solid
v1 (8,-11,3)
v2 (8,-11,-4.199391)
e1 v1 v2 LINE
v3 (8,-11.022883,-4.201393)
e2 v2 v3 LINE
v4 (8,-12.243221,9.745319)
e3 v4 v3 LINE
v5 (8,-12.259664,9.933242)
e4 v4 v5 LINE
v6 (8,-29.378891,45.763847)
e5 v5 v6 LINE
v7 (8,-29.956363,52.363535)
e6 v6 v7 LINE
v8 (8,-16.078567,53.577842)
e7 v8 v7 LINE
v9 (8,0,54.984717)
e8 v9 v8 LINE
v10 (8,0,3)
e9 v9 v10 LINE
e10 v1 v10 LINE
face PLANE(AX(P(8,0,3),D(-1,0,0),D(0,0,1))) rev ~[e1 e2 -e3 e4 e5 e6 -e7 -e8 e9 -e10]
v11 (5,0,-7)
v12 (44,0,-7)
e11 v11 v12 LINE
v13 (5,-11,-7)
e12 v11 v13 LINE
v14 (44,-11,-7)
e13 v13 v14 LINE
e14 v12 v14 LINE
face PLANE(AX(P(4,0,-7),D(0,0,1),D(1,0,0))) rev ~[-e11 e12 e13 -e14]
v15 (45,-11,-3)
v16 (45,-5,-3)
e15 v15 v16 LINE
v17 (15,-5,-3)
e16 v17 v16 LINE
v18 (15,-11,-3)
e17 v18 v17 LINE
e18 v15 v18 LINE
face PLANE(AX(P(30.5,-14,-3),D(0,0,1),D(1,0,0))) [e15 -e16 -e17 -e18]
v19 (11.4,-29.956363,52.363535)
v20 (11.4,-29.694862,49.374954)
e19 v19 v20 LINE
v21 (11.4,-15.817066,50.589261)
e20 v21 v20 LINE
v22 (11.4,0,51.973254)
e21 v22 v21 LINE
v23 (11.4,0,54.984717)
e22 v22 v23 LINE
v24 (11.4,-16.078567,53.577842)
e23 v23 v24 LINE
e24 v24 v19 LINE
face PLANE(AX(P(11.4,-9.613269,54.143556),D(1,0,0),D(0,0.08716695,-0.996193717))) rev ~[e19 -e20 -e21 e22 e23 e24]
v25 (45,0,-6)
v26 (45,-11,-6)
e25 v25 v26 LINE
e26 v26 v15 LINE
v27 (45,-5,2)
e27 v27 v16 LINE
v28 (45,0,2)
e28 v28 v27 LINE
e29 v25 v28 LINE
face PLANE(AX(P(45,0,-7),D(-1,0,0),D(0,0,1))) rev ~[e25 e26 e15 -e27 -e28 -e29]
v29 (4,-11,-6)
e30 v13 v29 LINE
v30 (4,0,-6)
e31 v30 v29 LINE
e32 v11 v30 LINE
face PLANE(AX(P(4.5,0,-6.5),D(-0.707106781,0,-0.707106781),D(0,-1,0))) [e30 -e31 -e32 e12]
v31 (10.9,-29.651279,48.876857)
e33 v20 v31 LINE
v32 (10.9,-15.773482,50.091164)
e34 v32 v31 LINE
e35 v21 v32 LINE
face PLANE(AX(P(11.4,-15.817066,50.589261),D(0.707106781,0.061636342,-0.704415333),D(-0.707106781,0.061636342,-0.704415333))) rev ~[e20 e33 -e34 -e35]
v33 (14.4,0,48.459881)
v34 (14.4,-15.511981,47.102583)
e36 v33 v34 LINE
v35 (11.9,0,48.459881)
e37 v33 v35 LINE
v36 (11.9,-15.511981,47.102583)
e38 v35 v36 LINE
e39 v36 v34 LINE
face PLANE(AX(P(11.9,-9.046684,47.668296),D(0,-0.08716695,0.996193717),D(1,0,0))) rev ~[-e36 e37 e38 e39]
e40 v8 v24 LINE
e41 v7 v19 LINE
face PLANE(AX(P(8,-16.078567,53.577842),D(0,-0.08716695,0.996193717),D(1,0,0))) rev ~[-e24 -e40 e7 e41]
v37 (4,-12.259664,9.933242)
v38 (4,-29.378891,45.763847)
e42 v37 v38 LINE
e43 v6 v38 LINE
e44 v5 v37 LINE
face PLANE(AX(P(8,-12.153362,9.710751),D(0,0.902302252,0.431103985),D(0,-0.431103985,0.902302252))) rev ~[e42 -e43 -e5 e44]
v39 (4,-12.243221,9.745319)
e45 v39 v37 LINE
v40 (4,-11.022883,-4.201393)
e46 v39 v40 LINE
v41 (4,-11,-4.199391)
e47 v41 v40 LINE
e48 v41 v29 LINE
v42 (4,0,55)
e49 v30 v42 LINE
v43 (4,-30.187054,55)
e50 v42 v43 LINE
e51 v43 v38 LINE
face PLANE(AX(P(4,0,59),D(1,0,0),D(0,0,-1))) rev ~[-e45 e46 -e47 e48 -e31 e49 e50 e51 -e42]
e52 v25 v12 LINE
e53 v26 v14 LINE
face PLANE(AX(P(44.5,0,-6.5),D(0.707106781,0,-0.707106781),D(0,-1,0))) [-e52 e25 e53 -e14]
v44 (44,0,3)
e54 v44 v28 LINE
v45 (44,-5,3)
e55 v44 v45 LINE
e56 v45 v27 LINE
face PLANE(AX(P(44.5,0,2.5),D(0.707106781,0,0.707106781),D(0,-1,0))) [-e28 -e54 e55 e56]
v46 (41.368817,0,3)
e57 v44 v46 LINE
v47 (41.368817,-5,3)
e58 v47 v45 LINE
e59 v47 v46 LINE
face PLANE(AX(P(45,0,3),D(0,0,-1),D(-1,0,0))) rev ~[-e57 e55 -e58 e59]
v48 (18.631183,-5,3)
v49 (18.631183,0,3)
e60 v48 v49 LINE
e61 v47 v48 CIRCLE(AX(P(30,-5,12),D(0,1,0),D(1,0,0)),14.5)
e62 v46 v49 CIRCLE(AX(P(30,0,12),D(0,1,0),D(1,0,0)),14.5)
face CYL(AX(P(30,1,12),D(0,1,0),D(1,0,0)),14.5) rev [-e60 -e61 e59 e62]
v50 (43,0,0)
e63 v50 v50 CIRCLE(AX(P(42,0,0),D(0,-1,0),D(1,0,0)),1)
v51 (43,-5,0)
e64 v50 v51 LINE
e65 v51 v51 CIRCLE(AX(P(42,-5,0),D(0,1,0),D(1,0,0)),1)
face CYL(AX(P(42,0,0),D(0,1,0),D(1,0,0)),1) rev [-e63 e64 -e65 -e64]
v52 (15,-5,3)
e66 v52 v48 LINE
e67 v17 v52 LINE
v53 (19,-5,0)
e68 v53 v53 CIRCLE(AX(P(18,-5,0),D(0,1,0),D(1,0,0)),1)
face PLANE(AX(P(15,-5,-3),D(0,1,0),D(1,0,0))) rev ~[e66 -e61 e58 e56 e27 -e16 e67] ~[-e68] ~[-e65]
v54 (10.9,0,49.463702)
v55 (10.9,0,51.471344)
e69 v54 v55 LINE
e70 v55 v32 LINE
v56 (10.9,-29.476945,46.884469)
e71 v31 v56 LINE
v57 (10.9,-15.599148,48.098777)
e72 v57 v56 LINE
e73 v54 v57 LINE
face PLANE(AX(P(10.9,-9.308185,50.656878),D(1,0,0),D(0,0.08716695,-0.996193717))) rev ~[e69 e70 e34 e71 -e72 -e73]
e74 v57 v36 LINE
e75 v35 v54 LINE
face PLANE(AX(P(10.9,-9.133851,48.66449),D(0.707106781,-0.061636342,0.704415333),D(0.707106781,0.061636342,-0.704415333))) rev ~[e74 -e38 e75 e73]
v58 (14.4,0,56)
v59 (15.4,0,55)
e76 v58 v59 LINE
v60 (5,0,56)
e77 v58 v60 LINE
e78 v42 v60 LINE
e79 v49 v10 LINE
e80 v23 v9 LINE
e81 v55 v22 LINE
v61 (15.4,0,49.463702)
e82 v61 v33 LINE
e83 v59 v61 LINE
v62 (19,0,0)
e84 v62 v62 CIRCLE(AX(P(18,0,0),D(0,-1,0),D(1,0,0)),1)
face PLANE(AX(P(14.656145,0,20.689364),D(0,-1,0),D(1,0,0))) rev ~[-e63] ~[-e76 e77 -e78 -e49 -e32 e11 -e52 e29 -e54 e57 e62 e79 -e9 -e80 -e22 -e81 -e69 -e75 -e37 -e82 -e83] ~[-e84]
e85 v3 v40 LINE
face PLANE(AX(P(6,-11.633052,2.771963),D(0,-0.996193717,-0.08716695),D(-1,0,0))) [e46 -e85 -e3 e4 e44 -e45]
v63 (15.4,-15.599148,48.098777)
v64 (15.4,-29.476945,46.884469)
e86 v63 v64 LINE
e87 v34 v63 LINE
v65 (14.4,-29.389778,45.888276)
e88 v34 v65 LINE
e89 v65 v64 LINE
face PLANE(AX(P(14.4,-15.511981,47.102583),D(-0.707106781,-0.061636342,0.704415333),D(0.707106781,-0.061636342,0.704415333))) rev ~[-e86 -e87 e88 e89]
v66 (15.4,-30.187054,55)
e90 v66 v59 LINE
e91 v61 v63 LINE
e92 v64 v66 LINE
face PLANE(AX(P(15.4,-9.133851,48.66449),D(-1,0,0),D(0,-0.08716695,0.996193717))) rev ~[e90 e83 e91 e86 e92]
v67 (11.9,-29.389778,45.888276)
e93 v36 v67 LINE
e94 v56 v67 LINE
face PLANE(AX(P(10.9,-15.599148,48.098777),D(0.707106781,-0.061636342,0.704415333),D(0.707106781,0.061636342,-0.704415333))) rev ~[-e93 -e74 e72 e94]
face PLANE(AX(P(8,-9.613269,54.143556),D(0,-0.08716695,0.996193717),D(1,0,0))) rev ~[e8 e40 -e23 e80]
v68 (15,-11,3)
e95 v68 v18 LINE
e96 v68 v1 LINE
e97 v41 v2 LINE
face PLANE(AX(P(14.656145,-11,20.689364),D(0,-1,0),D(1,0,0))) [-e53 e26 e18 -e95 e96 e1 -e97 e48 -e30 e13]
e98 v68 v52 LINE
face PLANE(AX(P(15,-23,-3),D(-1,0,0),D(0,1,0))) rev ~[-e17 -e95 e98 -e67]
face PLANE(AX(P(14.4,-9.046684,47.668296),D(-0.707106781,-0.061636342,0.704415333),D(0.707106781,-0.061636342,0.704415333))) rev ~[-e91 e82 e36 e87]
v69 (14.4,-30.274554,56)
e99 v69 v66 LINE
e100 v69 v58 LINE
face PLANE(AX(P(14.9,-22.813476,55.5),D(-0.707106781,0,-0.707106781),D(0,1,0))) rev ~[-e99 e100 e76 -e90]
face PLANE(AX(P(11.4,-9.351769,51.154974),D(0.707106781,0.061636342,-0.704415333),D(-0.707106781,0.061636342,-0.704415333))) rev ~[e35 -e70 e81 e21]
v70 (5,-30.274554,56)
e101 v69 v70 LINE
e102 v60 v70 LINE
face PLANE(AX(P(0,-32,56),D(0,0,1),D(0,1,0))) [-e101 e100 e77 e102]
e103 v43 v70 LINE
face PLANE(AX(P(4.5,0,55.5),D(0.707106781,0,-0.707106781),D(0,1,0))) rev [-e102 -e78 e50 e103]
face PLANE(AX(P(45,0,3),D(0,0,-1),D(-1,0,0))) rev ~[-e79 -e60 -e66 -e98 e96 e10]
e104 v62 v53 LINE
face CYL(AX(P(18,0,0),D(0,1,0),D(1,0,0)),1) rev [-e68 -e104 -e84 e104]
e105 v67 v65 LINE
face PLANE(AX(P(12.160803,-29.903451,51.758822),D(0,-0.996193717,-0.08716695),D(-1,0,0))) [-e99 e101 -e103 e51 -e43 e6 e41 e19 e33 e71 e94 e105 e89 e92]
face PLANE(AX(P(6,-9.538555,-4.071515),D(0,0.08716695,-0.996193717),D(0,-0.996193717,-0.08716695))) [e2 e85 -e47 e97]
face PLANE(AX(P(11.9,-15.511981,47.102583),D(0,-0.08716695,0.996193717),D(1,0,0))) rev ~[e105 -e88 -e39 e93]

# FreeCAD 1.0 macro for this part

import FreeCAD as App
import Part
import Sketcher
Q = App.Units.Quantity


def edges_at(feature, points):
    """Names of the edges that pass closest to the given points."""
    edges = feature.Shape.Edges
    near = lambda p: min(range(len(edges)), key=lambda i: edges[i].distToShape(Part.Vertex(*p))[0])
    return sorted({f"Edge{near(p) + 1}" for p in points})


def add_polygon(sketch, points):
    """Adds a closed chain of lines whose ends are joined by coincident constraints."""
    first, n = sketch.GeometryCount, len(points)
    for a, b in zip(points, points[1:] + points[:1]):
        sketch.addGeometry(Part.LineSegment(App.Vector(*a, 0), App.Vector(*b, 0)), False)
    for i in range(n):
        sketch.addConstraint(Sketcher.Constraint("Coincident", first + i, 2, first + (i + 1) % n, 1))

doc = App.newDocument("Part")
body = doc.addObject("PartDesign::Body", "Body")

sketch1 = body.newObject("Sketcher::SketchObject", "Sketch")
sketch1.AttachmentSupport = (doc.getObject("YZ_Plane"), [""])
sketch1.MapMode = "FlatFace"
add_polygon(sketch1, [(-32, 60), (-32, 56), (2, 56), (2, 60)])
sketch1.addConstraint(Sketcher.Constraint("Vertical", 0))
sketch1.addConstraint(Sketcher.Constraint("Horizontal", 1))
sketch1.addConstraint(Sketcher.Constraint("Vertical", 2))
sketch1.addConstraint(Sketcher.Constraint("Horizontal", 3))
sketch1.addConstraint(Sketcher.Constraint("DistanceX", 1, 1, 1, 2, 34.0))
sketch1.addConstraint(Sketcher.Constraint("DistanceY", 0, 2, 0, 1, 4.0))
sketch1.addConstraint(Sketcher.Constraint("DistanceX", 0, 2, -1, 1, 32.0))
sketch1.addConstraint(Sketcher.Constraint("DistanceY", -1, 1, 0, 2, 56.0))
pad1 = body.newObject("PartDesign::Pad", "Pad")
pad1.Profile = sketch1
pad1.Length = 30
body2 = doc.addObject("PartDesign::Body", "Body001")

sketch2 = body2.newObject("Sketcher::SketchObject", "Sketch001")
sketch2.Placement = App.Placement(App.Vector(-17.578899, -16.033386, 53.061496), App.Rotation(App.Vector(-1, 0, 0), App.Vector(0, 0.08716695, -0.996193717), App.Vector(0, -0.996193717, -0.08716695), "ZXY"))
add_polygon(sketch2, [(4.4, -4.5), (4.4, -0.5), (1, -0.5), (1, 2.5), (1.5, 3), (1.5, 5), (0.5, 6), (-2, 6), (-3, 5), (-3, -3.5), (-2, -4.5)])
sketch2.addConstraint(Sketcher.Constraint("Vertical", 0))
sketch2.addConstraint(Sketcher.Constraint("Horizontal", 1))
sketch2.addConstraint(Sketcher.Constraint("Vertical", 2))
sketch2.addConstraint(Sketcher.Constraint("Vertical", 4))
sketch2.addConstraint(Sketcher.Constraint("Horizontal", 6))
sketch2.addConstraint(Sketcher.Constraint("Vertical", 8))
sketch2.addConstraint(Sketcher.Constraint("Horizontal", 10))
sketch2.addConstraint(Sketcher.Constraint("Perpendicular", 3, 5))
sketch2.addConstraint(Sketcher.Constraint("Perpendicular", 5, 7))
sketch2.addConstraint(Sketcher.Constraint("Perpendicular", 7, 9))
sketch2.addConstraint(Sketcher.Constraint("Horizontal", 4, 2, 7, 2))
sketch2.addConstraint(Sketcher.Constraint("Vertical", 6, 2, 9, 2))
sketch2.addConstraint(Sketcher.Constraint("Equal", 5, 7))
sketch2.addConstraint(Sketcher.Constraint("DistanceY", 0, 1, 0, 2, 4.0))
sketch2.addConstraint(Sketcher.Constraint("DistanceY", 2, 1, 2, 2, 3.0))
sketch2.addConstraint(Sketcher.Constraint("DistanceY", 4, 1, 4, 2, 2.0))
sketch2.addConstraint(Sketcher.Constraint("DistanceX", 1, 2, 1, 1, 3.4))
sketch2.addConstraint(Sketcher.Constraint("DistanceX", 6, 2, 6, 1, 2.5))
sketch2.addConstraint(Sketcher.Constraint("DistanceX", 10, 1, 10, 2, 6.4))
sketch2.addConstraint(Sketcher.Constraint("DistanceX", 5, 2, 4, 2, 1.0))
sketch2.addConstraint(Sketcher.Constraint("DistanceX", -1, 1, 0, 2, 4.421101))
sketch2.addConstraint(Sketcher.Constraint("DistanceY", 0, 2, -1, 1, 0.518319))
pad2 = body2.newObject("PartDesign::Pad", "Pad001")
pad2.Profile = sketch2
pad2.Length = 13.930821
body3 = doc.addObject("PartDesign::Body", "Body002")

sketch3 = body3.newObject("Sketcher::SketchObject", "Sketch002")
sketch3.AttachmentSupport = (doc.getObject("XY_Plane002"), [""])
sketch3.MapMode = "FlatFace"
add_polygon(sketch3, [(-27, 10), (-27, 0), (-14, 0), (-14, 10)])
sketch3.addConstraint(Sketcher.Constraint("Vertical", 0))
sketch3.addConstraint(Sketcher.Constraint("Horizontal", 1))
sketch3.addConstraint(Sketcher.Constraint("Vertical", 2))
sketch3.addConstraint(Sketcher.Constraint("Horizontal", 3))
sketch3.addConstraint(Sketcher.Constraint("PointOnObject", 0, 2, -1))
sketch3.addConstraint(Sketcher.Constraint("DistanceX", 1, 1, 1, 2, 13.0))
sketch3.addConstraint(Sketcher.Constraint("DistanceY", 0, 2, 0, 1, 10.0))
sketch3.addConstraint(Sketcher.Constraint("DistanceX", 0, 2, -1, 1, 27.0))
pad3 = body3.newObject("PartDesign::Pad", "Pad002")
pad3.Profile = sketch3
pad3.Length = 60
body4 = doc.addObject("PartDesign::Body", "Body003")

sketch4 = body4.newObject("Sketcher::SketchObject", "Sketch003")
sketch4.Placement = App.Placement(App.Vector(-17.93, -18.755, 43.898096), App.Rotation(App.Vector(-1, 0, 0), App.Vector(0, 0.08716695, -0.996193717), App.Vector(0, -0.996193717, -0.08716695), "ZXY"))
add_polygon(sketch4, [(-4, 35), (-4, -35), (4, -35), (4, 35)])
sketch4.addConstraint(Sketcher.Constraint("Vertical", 0))
sketch4.addConstraint(Sketcher.Constraint("Horizontal", 1))
sketch4.addConstraint(Sketcher.Constraint("Vertical", 2))
sketch4.addConstraint(Sketcher.Constraint("Horizontal", 3))
sketch4.addConstraint(Sketcher.Constraint("Symmetric", 0, 2, 2, 2, -1, 1))
sketch4.addConstraint(Sketcher.Constraint("DistanceX", 1, 1, 1, 2, 8.14))
sketch4.addConstraint(Sketcher.Constraint("DistanceY", 0, 2, 0, 1, 69.180788))
pad4 = body4.newObject("PartDesign::Pad", "Pad003")
pad4.Profile = sketch4
pad4.Length = 0.460492
body5 = doc.addObject("PartDesign::Body", "Body004")

sketch5 = body5.newObject("Sketcher::SketchObject", "Sketch004")
sketch5.AttachmentSupport = (doc.getObject("YZ_Plane004"), [""])
sketch5.MapMode = "FlatFace"
sketch5.AttachmentOffset = App.Placement(App.Vector(0, 0, -22), App.Rotation())
add_polygon(sketch5, [(-21.8, 78.4), (-15.7, 9.4), (-12.2, 9.7), (-18.3, 78.7)])
sketch5.addConstraint(Sketcher.Constraint("Perpendicular", 0, 1))
sketch5.addConstraint(Sketcher.Constraint("Perpendicular", 1, 2))
sketch5.addConstraint(Sketcher.Constraint("Perpendicular", 2, 3))
sketch5.addConstraint(Sketcher.Constraint("Distance", 1, 3.51))
sketch5.addConstraint(Sketcher.Constraint("DistanceX", 2, 2, -1, 1, 18.273499))
sketch5.addConstraint(Sketcher.Constraint("DistanceX", 0, 2, -1, 1, 15.739861))
sketch5.addConstraint(Sketcher.Constraint("DistanceY", -1, 1, 1, 2, 9.745319))
sketch5.addConstraint(Sketcher.Constraint("DistanceY", -1, 1, 3, 2, 78.356829))
pad5 = body5.newObject("PartDesign::Pad", "Pad004")
pad5.Profile = sketch5
pad5.Length = 8.14
body6 = doc.addObject("PartDesign::Body", "Body005")

sketch6 = body6.newObject("Sketcher::SketchObject", "Sketch005")
sketch6.Placement = App.Placement(App.Vector(-24, -15.129692, 2.466007), App.Rotation(App.Vector(-1, 0, 0), App.Vector(0, 0.08716695, -0.996193717), App.Vector(0, -0.996193717, -0.08716695), "ZXY"))
add_polygon(sketch6, [(-2, 7), (-2, -7), (2, -7), (2, 7)])
sketch6.addConstraint(Sketcher.Constraint("Vertical", 0))
sketch6.addConstraint(Sketcher.Constraint("Horizontal", 1))
sketch6.addConstraint(Sketcher.Constraint("Vertical", 2))
sketch6.addConstraint(Sketcher.Constraint("Horizontal", 3))
sketch6.addConstraint(Sketcher.Constraint("Symmetric", 0, 2, 2, 2, -1, 1))
sketch6.addConstraint(Sketcher.Constraint("DistanceX", 1, 1, 1, 2, 4.0))
sketch6.addConstraint(Sketcher.Constraint("DistanceY", 0, 2, 0, 1, 14.0))
pad6 = body6.newObject("PartDesign::Pad", "Pad005")
pad6.Profile = sketch6
pad6.Length = 3.51
pad6.Reversed = True
body7 = doc.addObject("PartDesign::Body", "Body006")

sketch7 = body7.newObject("Sketcher::SketchObject", "Sketch006")
sketch7.Placement = App.Placement(App.Vector(-24, -13.991541, 9.592341), App.Rotation(App.Vector(0, 0.996193717, 0.08716695), App.Vector(-0.999999999, 0, 0), App.Vector(0, -0.08716695, 0.996193717), "ZXY"))
add_polygon(sketch7, [(-1.8, 2), (-1.8, -2), (1.8, -2), (1.8, 2)])
sketch7.addConstraint(Sketcher.Constraint("Vertical", 0))
sketch7.addConstraint(Sketcher.Constraint("Horizontal", 1))
sketch7.addConstraint(Sketcher.Constraint("Vertical", 2))
sketch7.addConstraint(Sketcher.Constraint("Horizontal", 3))
sketch7.addConstraint(Sketcher.Constraint("Symmetric", 0, 2, 2, 2, -1, 1))
sketch7.addConstraint(Sketcher.Constraint("DistanceY", 0, 2, 0, 1, 4.0))
sketch7.addConstraint(Sketcher.Constraint("DistanceX", 1, 1, 1, 2, 3.51))
pad7 = body7.newObject("PartDesign::Pad", "Pad006")
pad7.Profile = sketch7
pad7.Length = 69.180788
doc.recompute()

boolean = body7.newObject("PartDesign::Boolean", "Boolean")
boolean.Type = "Fuse"
boolean.addObjects([body6])
body8 = doc.addObject("PartDesign::Body", "Body007")

sketch8 = body8.newObject("Sketcher::SketchObject", "Sketch007")
sketch8.Placement = App.Placement(App.Vector(-24, -18.755, 43.898096), App.Rotation(App.Vector(-1, 0, 0), App.Vector(0, 0.08716695, -0.996193717), App.Vector(0, -0.996193717, -0.08716695), "ZXY"))
add_polygon(sketch8, [(-2, 34.6), (-2, -34.6), (2, -34.6), (2, 34.6)])
sketch8.addConstraint(Sketcher.Constraint("Vertical", 0))
sketch8.addConstraint(Sketcher.Constraint("Horizontal", 1))
sketch8.addConstraint(Sketcher.Constraint("Vertical", 2))
sketch8.addConstraint(Sketcher.Constraint("Horizontal", 3))
sketch8.addConstraint(Sketcher.Constraint("Symmetric", 0, 2, 2, 2, -1, 1))
sketch8.addConstraint(Sketcher.Constraint("DistanceX", 1, 1, 1, 2, 4.0))
sketch8.addConstraint(Sketcher.Constraint("DistanceY", 0, 2, 0, 1, 69.180788))
pad8 = body8.newObject("PartDesign::Pad", "Pad007")
pad8.Profile = sketch8
pad8.Length = 0.413143
doc.recompute()

boolean2 = body8.newObject("PartDesign::Boolean", "Boolean001")
boolean2.Type = "Fuse"
boolean2.addObjects([body4])
doc.recompute()

boolean3 = body8.newObject("PartDesign::Boolean", "Boolean002")
boolean3.Type = "Fuse"
boolean3.addObjects([body5])
doc.recompute()

boolean4 = body8.newObject("PartDesign::Boolean", "Boolean003")
boolean4.Type = "Fuse"
boolean4.addObjects([body7])
body9 = doc.addObject("PartDesign::Body", "Body008")

sketch9 = body9.newObject("Sketcher::SketchObject", "Sketch008")
sketch9.AttachmentSupport = (doc.getObject("XY_Plane008"), [""])
sketch9.MapMode = "FlatFace"
sketch9.AttachmentOffset = App.Placement(App.Vector(0, 0, 11), App.Rotation())
add_polygon(sketch9, [(-26, -10), (-22, -10), (-22, -20), (-26, -20)])
sketch9.addConstraint(Sketcher.Constraint("Horizontal", 0))
sketch9.addConstraint(Sketcher.Constraint("Vertical", 1))
sketch9.addConstraint(Sketcher.Constraint("Horizontal", 2))
sketch9.addConstraint(Sketcher.Constraint("Vertical", 3))
sketch9.addConstraint(Sketcher.Constraint("DistanceX", 0, 1, 0, 2, 4.0))
sketch9.addConstraint(Sketcher.Constraint("DistanceY", 1, 2, 1, 1, 10.0))
sketch9.addConstraint(Sketcher.Constraint("DistanceX", 0, 2, -1, 1, 22.0))
sketch9.addConstraint(Sketcher.Constraint("DistanceY", 0, 2, -1, 1, 10.0))
pad9 = body9.newObject("PartDesign::Pad", "Pad008")
pad9.Profile = sketch9
pad9.Length = 14
pad9.Reversed = True
body10 = doc.addObject("PartDesign::Body", "Body009")

sketch10 = body10.newObject("Sketcher::SketchObject", "Sketch009")
sketch10.AttachmentSupport = (doc.getObject("XZ_Plane009"), [""])
sketch10.MapMode = "FlatFace"
sketch10.AttachmentOffset = App.Placement(App.Vector(0, 0, 10), App.Rotation())
add_polygon(sketch10, [(-26, 11), (-22, 11), (-22, 55), (-18.6, 55), (-18.6, 52), (-19.1, 51.5), (-19.1, 49.5), (-18.1, 48.5), (-15.6, 48.5), (-14.6, 49.5), (-14.6, 58), (-15.6, 59), (-25, 59), (-26, 58)])
sketch10.addConstraint(Sketcher.Constraint("Horizontal", 0))
sketch10.addConstraint(Sketcher.Constraint("Vertical", 1))
sketch10.addConstraint(Sketcher.Constraint("Horizontal", 2))
sketch10.addConstraint(Sketcher.Constraint("Vertical", 3))
sketch10.addConstraint(Sketcher.Constraint("Vertical", 5))
sketch10.addConstraint(Sketcher.Constraint("Horizontal", 7))
sketch10.addConstraint(Sketcher.Constraint("Vertical", 9))
sketch10.addConstraint(Sketcher.Constraint("Horizontal", 11))
sketch10.addConstraint(Sketcher.Constraint("Vertical", 13))
sketch10.addConstraint(Sketcher.Constraint("Perpendicular", 4, 6))
sketch10.addConstraint(Sketcher.Constraint("Perpendicular", 6, 8))
sketch10.addConstraint(Sketcher.Constraint("Perpendicular", 8, 10))
sketch10.addConstraint(Sketcher.Constraint("Perpendicular", 10, 12))
sketch10.addConstraint(Sketcher.Constraint("Horizontal", 5, 2, 8, 2))
sketch10.addConstraint(Sketcher.Constraint("Horizontal", 9, 2, 12, 2))
sketch10.addConstraint(Sketcher.Constraint("Vertical", 7, 2, 10, 2))
sketch10.addConstraint(Sketcher.Constraint("Equal", 6, 8))
sketch10.addConstraint(Sketcher.Constraint("DistanceX", 0, 1, 0, 2, 4.0))
sketch10.addConstraint(Sketcher.Constraint("DistanceY", 1, 1, 1, 2, 44.0))
sketch10.addConstraint(Sketcher.Constraint("DistanceY", 3, 2, 3, 1, 3.0))
sketch10.addConstraint(Sketcher.Constraint("DistanceY", 5, 2, 5, 1, 2.0))
sketch10.addConstraint(Sketcher.Constraint("DistanceY", 13, 2, 13, 1, 47.0))
sketch10.addConstraint(Sketcher.Constraint("DistanceX", 2, 1, 2, 2, 3.4))
sketch10.addConstraint(Sketcher.Constraint("DistanceX", 7, 1, 7, 2, 2.5))
sketch10.addConstraint(Sketcher.Constraint("DistanceX", 11, 2, 11, 1, 9.4))
sketch10.addConstraint(Sketcher.Constraint("DistanceX", 0, 2, -1, 1, 22.0))
sketch10.addConstraint(Sketcher.Constraint("DistanceY", -1, 1, 0, 2, 11.0))
sketch10.addConstraint(Sketcher.Constraint("DistanceY", -1, 1, 10, 2, 59.0))
pad10 = body10.newObject("PartDesign::Pad", "Pad009")
pad10.Profile = sketch10
pad10.Length = 10
body11 = doc.addObject("PartDesign::Body", "Body010")

sketch11 = body11.newObject("Sketcher::SketchObject", "Sketch010")
sketch11.AttachmentSupport = (doc.getObject("XZ_Plane010"), [""])
sketch11.MapMode = "FlatFace"
sketch11.AttachmentOffset = App.Placement(App.Vector(0, 0, 10), App.Rotation())
add_polygon(sketch11, [(-22, 11), (-26, 11), (-26, 58), (-25, 59), (-15.6, 59), (-14.6, 58), (-14.6, 49.5), (-15.6, 48.5), (-18.1, 48.5), (-19.1, 49.5), (-19.1, 51.5), (-18.6, 52), (-18.6, 55), (-22, 55)])
sketch11.addConstraint(Sketcher.Constraint("Horizontal", 0))
sketch11.addConstraint(Sketcher.Constraint("Vertical", 1))
sketch11.addConstraint(Sketcher.Constraint("Horizontal", 3))
sketch11.addConstraint(Sketcher.Constraint("Vertical", 5))
sketch11.addConstraint(Sketcher.Constraint("Horizontal", 7))
sketch11.addConstraint(Sketcher.Constraint("Vertical", 9))
sketch11.addConstraint(Sketcher.Constraint("Vertical", 11))
sketch11.addConstraint(Sketcher.Constraint("Horizontal", 12))
sketch11.addConstraint(Sketcher.Constraint("Vertical", 13))
sketch11.addConstraint(Sketcher.Constraint("Perpendicular", 2, 4))
sketch11.addConstraint(Sketcher.Constraint("Perpendicular", 4, 6))
sketch11.addConstraint(Sketcher.Constraint("Perpendicular", 6, 8))
sketch11.addConstraint(Sketcher.Constraint("Perpendicular", 8, 10))
sketch11.addConstraint(Sketcher.Constraint("Horizontal", 1, 2, 4, 2))
sketch11.addConstraint(Sketcher.Constraint("Horizontal", 5, 2, 8, 2))
sketch11.addConstraint(Sketcher.Constraint("Vertical", 3, 2, 6, 2))
sketch11.addConstraint(Sketcher.Constraint("Equal", 2, 4))
sketch11.addConstraint(Sketcher.Constraint("DistanceX", 0, 2, 0, 1, 4.0))
sketch11.addConstraint(Sketcher.Constraint("DistanceY", 1, 1, 1, 2, 47.0))
sketch11.addConstraint(Sketcher.Constraint("DistanceY", 9, 1, 9, 2, 2.0))
sketch11.addConstraint(Sketcher.Constraint("DistanceY", 11, 1, 11, 2, 3.0))
sketch11.addConstraint(Sketcher.Constraint("DistanceY", 13, 2, 13, 1, 44.0))
sketch11.addConstraint(Sketcher.Constraint("DistanceX", 3, 1, 3, 2, 9.4))
sketch11.addConstraint(Sketcher.Constraint("DistanceX", 7, 2, 7, 1, 2.5))
sketch11.addConstraint(Sketcher.Constraint("DistanceX", 12, 2, 12, 1, 3.4))
sketch11.addConstraint(Sketcher.Constraint("DistanceX", 0, 2, -1, 1, 26.0))
sketch11.addConstraint(Sketcher.Constraint("DistanceY", -1, 1, 0, 2, 11.0))
sketch11.addConstraint(Sketcher.Constraint("DistanceX", 2, 2, -1, 1, 25.0))
pad11 = body11.newObject("PartDesign::Pad", "Pad010")
pad11.Profile = sketch11
pad11.Length = 10
pad11.Reversed = True
doc.recompute()

boolean5 = body11.newObject("PartDesign::Boolean", "Boolean004")
boolean5.Type = "Fuse"
boolean5.addObjects([body10])
doc.recompute()

boolean6 = body11.newObject("PartDesign::Boolean", "Boolean005")
boolean6.Type = "Fuse"
boolean6.addObjects([body9])
body12 = doc.addObject("PartDesign::Body", "Body011")
doc.recompute()

body11.Placement = App.Placement(App.Vector(0, 0, 0), App.Rotation(App.Vector(1, 0, 0), 5.000645))
boolean7 = body12.newObject("PartDesign::Boolean", "Boolean006")
boolean7.Type = "Fuse"
boolean7.addObjects([body11])
body13 = doc.addObject("PartDesign::Body", "Body012")
doc.recompute()

body12.Placement = App.Placement(App.Vector(0, 5.14285, 0.224571), App.Rotation(App.Vector(0, 0, 1), 0))
boolean8 = body13.newObject("PartDesign::Boolean", "Boolean007")
boolean8.Type = "Fuse"
boolean8.addObjects([body12])
doc.recompute()

boolean9 = body13.newObject("PartDesign::Boolean", "Boolean008")
boolean9.Type = "Cut"
boolean9.addObjects([body8])
doc.recompute()

boolean10 = body13.newObject("PartDesign::Boolean", "Boolean009")
boolean10.Type = "Cut"
boolean10.addObjects([body3])
body14 = doc.addObject("PartDesign::Body", "Body013")

sketch12 = body14.newObject("Sketcher::SketchObject", "Sketch011")
sketch12.AttachmentSupport = (doc.getObject("XY_Plane013"), [""])
sketch12.MapMode = "FlatFace"
sketch12.AttachmentOffset = App.Placement(App.Vector(0, 0, 11), App.Rotation())
add_polygon(sketch12, [(-27, 1), (-27, -12), (-14, -12), (-14, 1)])
sketch12.addConstraint(Sketcher.Constraint("Vertical", 0))
sketch12.addConstraint(Sketcher.Constraint("Horizontal", 1))
sketch12.addConstraint(Sketcher.Constraint("Vertical", 2))
sketch12.addConstraint(Sketcher.Constraint("Horizontal", 3))
sketch12.addConstraint(Sketcher.Constraint("Equal", 3, 0))
sketch12.addConstraint(Sketcher.Constraint("DistanceX", 1, 1, 1, 2, 13.0))
sketch12.addConstraint(Sketcher.Constraint("DistanceX", 0, 2, -1, 1, 27.0))
sketch12.addConstraint(Sketcher.Constraint("DistanceY", 0, 2, -1, 1, 12.0))
pad12 = body14.newObject("PartDesign::Pad", "Pad011")
pad12.Profile = sketch12
pad12.Length = 49
body15 = doc.addObject("PartDesign::Body", "Body014")

sketch13 = body15.newObject("Sketcher::SketchObject", "Sketch012")
sketch13.AttachmentSupport = (doc.getObject("XY_Plane014"), [""])
sketch13.MapMode = "FlatFace"
sketch13.AttachmentOffset = App.Placement(App.Vector(0, 0, 11), App.Rotation())
add_polygon(sketch13, [(-29, -10), (-29, -21), (-14, -21), (-14, -10)])
sketch13.addConstraint(Sketcher.Constraint("Vertical", 0))
sketch13.addConstraint(Sketcher.Constraint("Horizontal", 1))
sketch13.addConstraint(Sketcher.Constraint("Vertical", 2))
sketch13.addConstraint(Sketcher.Constraint("Horizontal", 3))
sketch13.addConstraint(Sketcher.Constraint("DistanceX", 1, 1, 1, 2, 15.0))
sketch13.addConstraint(Sketcher.Constraint("DistanceY", 0, 2, 0, 1, 11.0))
sketch13.addConstraint(Sketcher.Constraint("DistanceX", 0, 2, -1, 1, 29.0))
sketch13.addConstraint(Sketcher.Constraint("DistanceY", 0, 2, -1, 1, 21.0))
pad13 = body15.newObject("PartDesign::Pad", "Pad012")
pad13.Profile = sketch13
pad13.Length = 49
body16 = doc.addObject("PartDesign::Body", "Body015")

sketch14 = body16.newObject("Sketcher::SketchObject", "Sketch013")
sketch14.AttachmentSupport = (doc.getObject("XY_Plane015"), [""])
sketch14.MapMode = "FlatFace"
sketch14.AttachmentOffset = App.Placement(App.Vector(0, 0, -3), App.Rotation())
add_polygon(sketch14, [(-15, -5), (-15, -23), (16, -23), (16, -5)])
sketch14.addConstraint(Sketcher.Constraint("Vertical", 0))
sketch14.addConstraint(Sketcher.Constraint("Horizontal", 1))
sketch14.addConstraint(Sketcher.Constraint("Vertical", 2))
sketch14.addConstraint(Sketcher.Constraint("Horizontal", 3))
sketch14.addConstraint(Sketcher.Constraint("DistanceX", 1, 1, 1, 2, 31.0))
sketch14.addConstraint(Sketcher.Constraint("DistanceY", 0, 2, 0, 1, 18.0))
sketch14.addConstraint(Sketcher.Constraint("DistanceX", 0, 2, -1, 1, 15.0))
sketch14.addConstraint(Sketcher.Constraint("DistanceY", 0, 2, -1, 1, 23.0))
pad14 = body16.newObject("PartDesign::Pad", "Pad013")
pad14.Profile = sketch14
pad14.Length = 14
body17 = doc.addObject("PartDesign::Body", "Body016")

sketch15 = body17.newObject("Sketcher::SketchObject", "Sketch014")
sketch15.AttachmentSupport = (doc.getObject("XY_Plane016"), [""])
sketch15.MapMode = "FlatFace"
sketch15.addGeometry(Part.Circle(App.Vector(0, 0, 0), App.Vector(0, 0, 1), 14), False)
sketch15.addConstraint(Sketcher.Constraint("Coincident", 0, 3, -1, 1))
sketch15.addConstraint(Sketcher.Constraint("Diameter", 0, 29.0))
pad15 = body17.newObject("PartDesign::Pad", "Pad014")
pad15.Profile = sketch15
pad15.Length = 13
body18 = doc.addObject("PartDesign::Body", "Body017")
doc.recompute()

body17.Placement = App.Placement(App.Vector(0, 0, 0), App.Rotation(App.Vector(1, 0, 0), 90))
boolean11 = body18.newObject("PartDesign::Boolean", "Boolean010")
boolean11.Type = "Fuse"
boolean11.addObjects([body17])
body19 = doc.addObject("PartDesign::Body", "Body018")
doc.recompute()

body18.Placement = App.Placement(App.Vector(0, 1, 12), App.Rotation(App.Vector(0, 0, 1), 0))
boolean12 = body19.newObject("PartDesign::Boolean", "Boolean011")
boolean12.Type = "Fuse"
boolean12.addObjects([body18])
body20 = doc.addObject("PartDesign::Body", "Body019")

sketch16 = body20.newObject("Sketcher::SketchObject", "Sketch015")
sketch16.AttachmentSupport = (doc.getObject("XZ_Plane019"), [""])
sketch16.MapMode = "FlatFace"
add_polygon(sketch16, [(15, -7), (15, 3), (-22, 3), (-22, 55), (-18.6, 55), (-18.6, 52), (-19.1, 51.5), (-19.1, 48.5), (-14.6, 48.5), (-14.6, 59), (-26, 59), (-26, -7)])
sketch16.addGeometry(Part.Circle(App.Vector(-12, 0, 0), App.Vector(0, 0, 1), 1), False)
sketch16.addGeometry(Part.Circle(App.Vector(12, 0, 0), App.Vector(0, 0, 1), 1), False)
sketch16.addConstraint(Sketcher.Constraint("Vertical", 0))
sketch16.addConstraint(Sketcher.Constraint("Horizontal", 1))
sketch16.addConstraint(Sketcher.Constraint("Vertical", 2))
sketch16.addConstraint(Sketcher.Constraint("Horizontal", 3))
sketch16.addConstraint(Sketcher.Constraint("Vertical", 4))
sketch16.addConstraint(Sketcher.Constraint("Vertical", 6))
sketch16.addConstraint(Sketcher.Constraint("Horizontal", 7))
sketch16.addConstraint(Sketcher.Constraint("Vertical", 8))
sketch16.addConstraint(Sketcher.Constraint("Horizontal", 9))
sketch16.addConstraint(Sketcher.Constraint("Vertical", 10))
sketch16.addConstraint(Sketcher.Constraint("Horizontal", 11))
sketch16.addConstraint(Sketcher.Constraint("Equal", 12, 13))
sketch16.addConstraint(Sketcher.Constraint("Symmetric", 12, 3, 13, 3, -1, 1))
sketch16.addConstraint(Sketcher.Constraint("PointOnObject", 12, 3, -1))
sketch16.addConstraint(Sketcher.Constraint("Equal", 4, 6))
sketch16.addConstraint(Sketcher.Constraint("Diameter", 12, 2.0))
sketch16.addConstraint(Sketcher.Constraint("DistanceX", 1, 2, 1, 1, 37.0))
sketch16.addConstraint(Sketcher.Constraint("DistanceX", 11, 1, 11, 2, 41.0))
sketch16.addConstraint(Sketcher.Constraint("DistanceY", 0, 1, 0, 2, 10.0))
sketch16.addConstraint(Sketcher.Constraint("DistanceY", 2, 1, 2, 2, 52.0))
sketch16.addConstraint(Sketcher.Constraint("DistanceY", 4, 2, 4, 1, 3.0))
sketch16.addConstraint(Sketcher.Constraint("DistanceY", 10, 2, 10, 1, 66.0))
sketch16.addConstraint(Sketcher.Constraint("Angle", 5, Q("-135 deg")))
sketch16.addConstraint(Sketcher.Constraint("DistanceX", 3, 1, 3, 2, 3.4))
sketch16.addConstraint(Sketcher.Constraint("DistanceX", 7, 1, 7, 2, 4.5))
sketch16.addConstraint(Sketcher.Constraint("DistanceX", 9, 2, 9, 1, 11.4))
sketch16.addConstraint(Sketcher.Constraint("DistanceX", 12, 3, -1, 1, 12.0))
sketch16.addConstraint(Sketcher.Constraint("DistanceX", -1, 1, 0, 2, 15.0))
sketch16.addConstraint(Sketcher.Constraint("DistanceY", -1, 1, 0, 2, 3.0))
pad16 = body20.newObject("PartDesign::Pad", "Pad015")
pad16.Profile = sketch16
pad16.Length = 11
doc.recompute()

boolean13 = body20.newObject("PartDesign::Boolean", "Boolean012")
boolean13.Type = "Cut"
boolean13.addObjects([body19])
doc.recompute()

boolean14 = body20.newObject("PartDesign::Boolean", "Boolean013")
boolean14.Type = "Cut"
boolean14.addObjects([body16])
doc.recompute()

chamfer = body20.newObject("PartDesign::Chamfer", "Chamfer")
chamfer.Base = (boolean14, edges_at(boolean14, [(15, -5.5, -7)]))
chamfer.Size = 1
doc.recompute()

chamfer2 = body20.newObject("PartDesign::Chamfer", "Chamfer001")
chamfer2.Base = (chamfer, edges_at(chamfer, [(-26, -5.5, -7)]))
chamfer2.Size = 1
doc.recompute()

chamfer3 = body20.newObject("PartDesign::Chamfer", "Chamfer002")
chamfer3.Base = (chamfer2, edges_at(chamfer2, [(-26, -5.5, 59)]))
chamfer3.Size = 1
doc.recompute()

chamfer4 = body20.newObject("PartDesign::Chamfer", "Chamfer003")
chamfer4.Base = (chamfer3, edges_at(chamfer3, [(-14.6, -5.5, 59)]))
chamfer4.Size = 1
doc.recompute()

chamfer5 = body20.newObject("PartDesign::Chamfer", "Chamfer004")
chamfer5.Base = (chamfer4, edges_at(chamfer4, [(-14.6, -5.5, 48.5)]))
chamfer5.Size = 1
doc.recompute()

chamfer6 = body20.newObject("PartDesign::Chamfer", "Chamfer005")
chamfer6.Base = (chamfer5, edges_at(chamfer5, [(-19.1, -5.5, 48.5)]))
chamfer6.Size = 1
doc.recompute()

chamfer7 = body20.newObject("PartDesign::Chamfer", "Chamfer006")
chamfer7.Base = (chamfer6, edges_at(chamfer6, [(15, -2.5, 3)]))
chamfer7.Size = 1
doc.recompute()

boolean15 = body20.newObject("PartDesign::Boolean", "Boolean014")
boolean15.Type = "Cut"
boolean15.addObjects([body15])
doc.recompute()

boolean16 = body20.newObject("PartDesign::Boolean", "Boolean015")
boolean16.Type = "Cut"
boolean16.addObjects([body14])
doc.recompute()

boolean17 = body20.newObject("PartDesign::Boolean", "Boolean016")
boolean17.Type = "Fuse"
boolean17.addObjects([body13])
body21 = doc.addObject("PartDesign::Body", "Body020")

sketch17 = body21.newObject("Sketcher::SketchObject", "Sketch016")
sketch17.Placement = App.Placement(App.Vector(-23.995648, -14.329841, 33.59241), App.Rotation(App.Vector(-1, 0, 0), App.Vector(0, 0.08716695, -0.996193717), App.Vector(0, -0.996193717, -0.08716695), "ZXY"))
add_polygon(sketch17, [(2, 23.9), (-2, 23.9), (-2, -24.1), (1, -24.1), (2, -23.1)])
sketch17.addConstraint(Sketcher.Constraint("Horizontal", 0))
sketch17.addConstraint(Sketcher.Constraint("Vertical", 1))
sketch17.addConstraint(Sketcher.Constraint("Horizontal", 2))
sketch17.addConstraint(Sketcher.Constraint("Vertical", 4))
sketch17.addConstraint(Sketcher.Constraint("DistanceX", 0, 2, 0, 1, 4.0))
sketch17.addConstraint(Sketcher.Constraint("DistanceX", 2, 1, 2, 2, 3.0))
sketch17.addConstraint(Sketcher.Constraint("DistanceY", 1, 2, 1, 1, 48.0))
sketch17.addConstraint(Sketcher.Constraint("DistanceY", 4, 1, 4, 2, 47.0))
sketch17.addConstraint(Sketcher.Constraint("DistanceX", 0, 2, -1, 1, 1.995648))
sketch17.addConstraint(Sketcher.Constraint("DistanceY", -1, 1, 0, 2, 23.938207))
pad17 = body21.newObject("PartDesign::Pad", "Pad016")
pad17.Profile = sketch17
pad17.Length = 13.930821

sketch18 = body21.newObject("Sketcher::SketchObject", "Sketch017")
sketch18.AttachmentSupport = (doc.getObject("YZ_Plane020"), [""])
sketch18.MapMode = "FlatFace"
sketch18.AttachmentOffset = App.Placement(App.Vector(0, 0, -22), App.Rotation())
add_polygon(sketch18, [(-12, 10), (-30, 47), (-30, 0)])
sketch18.addConstraint(Sketcher.Constraint("Vertical", 1))
sketch18.addConstraint(Sketcher.Constraint("PointOnObject", 1, 2, -1))
sketch18.addConstraint(Sketcher.Constraint("DistanceX", 0, 2, -1, 1, 30.0))
sketch18.addConstraint(Sketcher.Constraint("DistanceY", 1, 2, 1, 1, 47.063831))
sketch18.addConstraint(Sketcher.Constraint("Distance", 2, 20.317509))
sketch18.addConstraint(Sketcher.Constraint("DistanceY", -1, 1, 2, 2, 9.710751))
pocket1 = body21.newObject("PartDesign::Pocket", "Pocket")
pocket1.Profile = sketch18
pocket1.Length = 5
doc.recompute()

boolean18 = body21.newObject("PartDesign::Boolean", "Boolean017")
boolean18.Type = "Fuse"
boolean18.addObjects([body2])
doc.recompute()

boolean19 = body21.newObject("PartDesign::Boolean", "Boolean018")
boolean19.Type = "Fuse"
boolean19.addObjects([body20])
body22 = doc.addObject("PartDesign::Body", "Body021")
doc.recompute()

body21.Placement = App.Placement(App.Vector(30, 0, 0), App.Rotation(App.Vector(0, 0, 1), 0))
boolean20 = body22.newObject("PartDesign::Boolean", "Boolean019")
boolean20.Type = "Fuse"
boolean20.addObjects([body21])
doc.recompute()

boolean21 = body22.newObject("PartDesign::Boolean", "Boolean020")
boolean21.Type = "Cut"
boolean21.addObjects([body])
doc.recompute()

chamfer8 = body22.newObject("PartDesign::Chamfer", "Chamfer007")
chamfer8.Base = (boolean21, edges_at(boolean21, [(4, -11.407, 56), (15.4, -11.407, 56)]))
chamfer8.Size = 1

doc.recompute()
